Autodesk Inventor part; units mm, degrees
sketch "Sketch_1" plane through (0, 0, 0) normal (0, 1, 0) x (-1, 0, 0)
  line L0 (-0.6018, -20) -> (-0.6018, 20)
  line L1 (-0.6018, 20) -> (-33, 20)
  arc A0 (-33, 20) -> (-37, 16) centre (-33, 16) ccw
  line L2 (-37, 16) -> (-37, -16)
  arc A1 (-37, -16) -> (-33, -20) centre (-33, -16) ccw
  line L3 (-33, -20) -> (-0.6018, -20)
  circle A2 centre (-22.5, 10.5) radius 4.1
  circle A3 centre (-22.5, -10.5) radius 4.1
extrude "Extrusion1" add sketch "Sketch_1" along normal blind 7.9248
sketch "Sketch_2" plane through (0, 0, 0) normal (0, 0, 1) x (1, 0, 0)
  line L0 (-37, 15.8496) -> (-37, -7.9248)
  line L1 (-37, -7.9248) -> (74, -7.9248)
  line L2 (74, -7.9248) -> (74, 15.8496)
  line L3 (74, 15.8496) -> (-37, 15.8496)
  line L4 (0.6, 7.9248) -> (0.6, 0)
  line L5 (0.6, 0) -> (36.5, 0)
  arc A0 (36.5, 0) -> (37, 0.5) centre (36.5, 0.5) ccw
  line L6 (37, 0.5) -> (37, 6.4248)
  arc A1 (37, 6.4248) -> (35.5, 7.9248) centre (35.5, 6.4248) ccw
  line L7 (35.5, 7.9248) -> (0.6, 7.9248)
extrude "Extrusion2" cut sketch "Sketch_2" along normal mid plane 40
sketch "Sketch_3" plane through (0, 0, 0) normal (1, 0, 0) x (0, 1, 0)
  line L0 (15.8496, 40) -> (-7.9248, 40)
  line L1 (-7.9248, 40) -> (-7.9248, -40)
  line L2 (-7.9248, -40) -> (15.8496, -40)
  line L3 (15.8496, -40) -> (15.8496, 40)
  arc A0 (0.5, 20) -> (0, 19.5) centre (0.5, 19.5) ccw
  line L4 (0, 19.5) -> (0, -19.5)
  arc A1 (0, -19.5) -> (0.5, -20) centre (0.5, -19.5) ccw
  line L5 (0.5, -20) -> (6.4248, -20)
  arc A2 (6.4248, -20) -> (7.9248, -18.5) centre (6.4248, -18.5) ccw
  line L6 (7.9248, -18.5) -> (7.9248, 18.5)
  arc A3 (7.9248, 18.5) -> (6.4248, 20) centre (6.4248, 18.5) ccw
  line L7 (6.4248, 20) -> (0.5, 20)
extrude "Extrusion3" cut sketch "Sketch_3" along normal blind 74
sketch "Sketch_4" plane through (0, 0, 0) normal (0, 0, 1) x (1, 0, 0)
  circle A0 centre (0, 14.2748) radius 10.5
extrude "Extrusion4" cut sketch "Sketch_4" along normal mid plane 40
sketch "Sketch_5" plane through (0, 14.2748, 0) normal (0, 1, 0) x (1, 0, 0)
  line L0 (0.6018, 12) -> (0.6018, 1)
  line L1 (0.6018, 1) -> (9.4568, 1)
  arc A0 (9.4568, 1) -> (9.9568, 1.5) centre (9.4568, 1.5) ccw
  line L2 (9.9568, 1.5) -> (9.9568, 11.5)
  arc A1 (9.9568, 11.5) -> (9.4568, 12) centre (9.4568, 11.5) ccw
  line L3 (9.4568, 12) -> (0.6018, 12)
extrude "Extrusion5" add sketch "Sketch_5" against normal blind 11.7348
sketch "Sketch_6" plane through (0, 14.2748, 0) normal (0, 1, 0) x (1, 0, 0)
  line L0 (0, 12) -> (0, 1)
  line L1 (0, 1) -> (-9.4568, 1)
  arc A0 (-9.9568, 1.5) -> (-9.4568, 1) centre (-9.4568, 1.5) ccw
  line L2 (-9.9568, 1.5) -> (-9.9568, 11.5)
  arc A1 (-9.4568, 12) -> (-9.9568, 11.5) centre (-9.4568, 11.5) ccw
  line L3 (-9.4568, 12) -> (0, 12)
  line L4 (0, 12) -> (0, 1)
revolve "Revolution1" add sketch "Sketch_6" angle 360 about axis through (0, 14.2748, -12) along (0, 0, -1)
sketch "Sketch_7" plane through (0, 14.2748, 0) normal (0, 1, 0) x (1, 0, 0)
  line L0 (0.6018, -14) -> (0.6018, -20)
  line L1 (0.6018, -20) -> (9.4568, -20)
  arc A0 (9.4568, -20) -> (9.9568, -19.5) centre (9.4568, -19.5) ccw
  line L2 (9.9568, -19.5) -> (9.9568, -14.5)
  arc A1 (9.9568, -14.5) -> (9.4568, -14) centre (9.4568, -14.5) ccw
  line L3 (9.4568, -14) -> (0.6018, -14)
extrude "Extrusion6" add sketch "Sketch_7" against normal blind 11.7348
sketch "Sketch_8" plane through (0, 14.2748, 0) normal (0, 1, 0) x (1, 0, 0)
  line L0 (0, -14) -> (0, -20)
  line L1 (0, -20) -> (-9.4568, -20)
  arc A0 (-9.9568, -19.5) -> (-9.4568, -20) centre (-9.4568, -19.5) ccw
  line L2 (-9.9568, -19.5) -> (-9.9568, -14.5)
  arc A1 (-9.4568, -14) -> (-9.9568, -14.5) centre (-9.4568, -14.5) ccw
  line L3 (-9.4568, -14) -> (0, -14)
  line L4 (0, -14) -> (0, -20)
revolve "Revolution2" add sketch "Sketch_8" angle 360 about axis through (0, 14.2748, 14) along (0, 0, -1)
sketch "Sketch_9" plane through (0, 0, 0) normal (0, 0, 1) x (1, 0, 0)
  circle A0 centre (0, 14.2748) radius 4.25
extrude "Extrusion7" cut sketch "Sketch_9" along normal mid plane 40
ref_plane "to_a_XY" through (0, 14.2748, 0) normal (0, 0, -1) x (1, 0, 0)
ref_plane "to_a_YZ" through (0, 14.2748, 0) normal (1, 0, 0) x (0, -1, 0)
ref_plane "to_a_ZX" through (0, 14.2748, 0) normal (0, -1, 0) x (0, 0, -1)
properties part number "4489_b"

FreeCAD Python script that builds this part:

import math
import FreeCAD as App
import Part
import Sketcher
from FreeCAD import Vector
Q = App.Units.Quantity


def add_polygon(sketch, points):
    """Adds a closed chain of lines whose ends are joined by coincident constraints."""
    first, n = sketch.GeometryCount, len(points)
    for a, b in zip(points, points[1:] + points[:1]):
        sketch.addGeometry(Part.LineSegment(App.Vector(*a, 0), App.Vector(*b, 0)), False)
    for i in range(n):
        sketch.addConstraint(Sketcher.Constraint("Coincident", first + i, 2, first + (i + 1) % n, 1))

doc = App.newDocument("Part")
params = doc.addObject("Spreadsheet::Sheet", "Params")
for row, (alias, value) in enumerate([
    ("sketch1_radius", "4 mm"),
    ("sketch1_diameter", "8.2 mm"),
    ("sketch1_height", "40 mm"),
    ("pad1_length", "7.9248 mm"),
    ("sketch2_radius", "1.5 mm"),
    ("sketch2_radius2", "0.5 mm"),
    ("sketch2_width", "111 mm"),
    ("sketch2_width2", "34.9 mm"),
    ("pocket1_length", "40 mm"),
    ("sketch3_radius", "0.5 mm"),
    ("sketch3_radius2", "1.5 mm"),
    ("sketch3_height", "80 mm"),
    ("sketch3_height2", "37 mm"),
    ("pocket2_length", "74 mm"),
    ("sketch4_diameter", "21 mm"),
    ("pocket3_length", "40 mm"),
    ("sketch5_radius", "0.5 mm"),
    ("sketch5_height", "11 mm"),
    ("pad2_length", "11.7348 mm"),
    ("sketch6_radius", "0.5 mm"),
    ("sketch6_height", "11 mm"),
    ("revolution_angle", "360 deg"),
    ("sketch7_radius", "0.5 mm"),
    ("sketch7_height", "6 mm"),
    ("pad3_length", "11.7348 mm"),
    ("sketch8_radius", "0.5 mm"),
    ("sketch8_height", "6 mm"),
    ("revolution2_angle", "360 deg"),
    ("sketch9_diameter", "8.5 mm"),
    ("pocket4_length", "40 mm"),
], start=1):
    params.set(f"A{row}", alias)
    params.set(f"B{row}", "=" + value)
    params.setAlias(f"B{row}", alias)

body = doc.addObject("PartDesign::Body", "Body")

sketch1 = body.newObject("Sketcher::SketchObject", "Sketch")
sketch1.AttachmentSupport = (doc.getObject("XZ_Plane"), [""])
sketch1.MapMode = "FlatFace"
sketch1.addGeometry([
    Part.LineSegment(Vector(33, -20, 0), Vector(0.6018, -20, 0)),
    Part.LineSegment(Vector(0.6018, -20, 0), Vector(0.6018, 20, 0)),
    Part.LineSegment(Vector(0.6018, 20, 0), Vector(33, 20, 0)),
    Part.ArcOfCircle(Part.Circle(Vector(33, 16, 0), Vector(0, 0, 1), 4), math.radians(0), math.radians(90)),
    Part.LineSegment(Vector(37, 16, 0), Vector(37, -16, 0)),
    Part.ArcOfCircle(Part.Circle(Vector(33, -16, 0), Vector(0, 0, 1), 4), math.radians(-90), math.radians(0)),
    Part.Circle(Vector(22.5, -10.5, 0), Vector(0, 0, 1), 4.1),
    Part.Circle(Vector(22.5, 10.5, 0), Vector(0, 0, 1), 4.1),
], False)
sketch1.addConstraint([
    Sketcher.Constraint("Coincident", 0, 2, 1, 1),
    Sketcher.Constraint("Coincident", 1, 2, 2, 1),
    Sketcher.Constraint("Tangent", 2, 2, 3, 2),
    Sketcher.Constraint("Tangent", 3, 1, 4, 1),
    Sketcher.Constraint("Tangent", 4, 2, 5, 2),
    Sketcher.Constraint("Tangent", 5, 1, 0, 1),
    Sketcher.Constraint("Horizontal", 0),
    Sketcher.Constraint("Vertical", 1),
    Sketcher.Constraint("Horizontal", 2),
    Sketcher.Constraint("Vertical", 4),
    Sketcher.Constraint("Equal", 3, 5),
    Sketcher.Constraint("Equal", 6, 7),
    Sketcher.Constraint("Symmetric", 6, 3, 7, 3, -1),
    Sketcher.Constraint("Radius", 3, Q("4 mm")),
    Sketcher.Constraint("Diameter", 6, Q("8.2 mm")),
    Sketcher.Constraint("DistanceY", 1, 1, 1, 2, Q("40 mm")),
    Sketcher.Constraint("DistanceX", -1, 1, 3, 3, Q("33 mm")),
    Sketcher.Constraint("DistanceY", -1, 1, 3, 3, Q("16 mm")),
    Sketcher.Constraint("DistanceY", 6, 3, 7, 3, Q("21 mm")),
    Sketcher.Constraint("DistanceX", -1, 1, 6, 3, Q("22.5 mm")),
    Sketcher.Constraint("DistanceX", 0, 2, 0, 1, Q("32.3982 mm")),
])
sketch1.setExpression("Constraints[13]", "Params.sketch1_radius")
sketch1.setExpression("Constraints[14]", "Params.sketch1_diameter")
sketch1.setExpression("Constraints[15]", "Params.sketch1_height")
pad1 = body.newObject("PartDesign::Pad", "Pad")
pad1.Profile = sketch1
pad1.setExpression("Length", "Params.pad1_length")
pad1.Reversed = True

sketch2 = body.newObject("Sketcher::SketchObject", "Sketch001")
sketch2.AttachmentSupport = (doc.getObject("XY_Plane"), [""])
sketch2.MapMode = "FlatFace"
add_polygon(sketch2, [(74, 15.8496), (-37, 15.8496), (-37, -7.9248), (74, -7.9248)])
sketch2.addGeometry(Part.LineSegment(Vector(0.6, 0, 0), Vector(0.6, 7.9248, 0)), False)
sketch2.addGeometry(Part.LineSegment(Vector(0.6, 7.9248, 0), Vector(35.5, 7.9248, 0)), False)
sketch2.addGeometry(Part.ArcOfCircle(Part.Circle(Vector(35.5, 6.4248, 0), Vector(0, 0, 1), 1.5), math.radians(0), math.radians(90)), False)
sketch2.addGeometry(Part.LineSegment(Vector(37, 6.4248, 0), Vector(37, 0.5, 0)), False)
sketch2.addGeometry(Part.ArcOfCircle(Part.Circle(Vector(36.5, 0.5, 0), Vector(0, 0, 1), 0.5), math.radians(-90), math.radians(0)), False)
sketch2.addGeometry(Part.LineSegment(Vector(36.5, 0, 0), Vector(0.6, 0, 0)), False)
sketch2.addConstraint([
    Sketcher.Constraint("Coincident", 4, 2, 5, 1),
    Sketcher.Constraint("Tangent", 5, 2, 6, 2),
    Sketcher.Constraint("Tangent", 6, 1, 7, 1),
    Sketcher.Constraint("Tangent", 7, 2, 8, 2),
    Sketcher.Constraint("Tangent", 8, 1, 9, 1),
    Sketcher.Constraint("Coincident", 9, 2, 4, 1),
    Sketcher.Constraint("Horizontal", 0),
    Sketcher.Constraint("Vertical", 1),
    Sketcher.Constraint("Horizontal", 2),
    Sketcher.Constraint("Vertical", 3),
    Sketcher.Constraint("Vertical", 4),
    Sketcher.Constraint("Horizontal", 5),
    Sketcher.Constraint("Vertical", 7),
    Sketcher.Constraint("Horizontal", 9),
    Sketcher.Constraint("PointOnObject", 8, 1, -1),
    Sketcher.Constraint("Radius", 6, Q("1.5 mm")),
    Sketcher.Constraint("Radius", 8, Q("0.5 mm")),
    Sketcher.Constraint("DistanceX", 0, 2, 0, 1, Q("111 mm")),
    Sketcher.Constraint("DistanceX", 5, 1, 5, 2, Q("34.9 mm")),
    Sketcher.Constraint("DistanceX", 0, 2, -1, 1, Q("37 mm")),
    Sketcher.Constraint("DistanceX", -1, 1, 6, 1, Q("37 mm")),
    Sketcher.Constraint("DistanceY", 1, 2, 1, 1, Q("23.7744 mm")),
    Sketcher.Constraint("DistanceY", 4, 1, 4, 2, Q("7.9248 mm")),
    Sketcher.Constraint("DistanceY", -1, 1, 0, 2, Q("15.8496 mm")),
])
sketch2.setExpression("Constraints[19]", "Params.sketch2_radius")
sketch2.setExpression("Constraints[20]", "Params.sketch2_radius2")
sketch2.setExpression("Constraints[21]", "Params.sketch2_width")
sketch2.setExpression("Constraints[22]", "Params.sketch2_width2")
pocket1 = body.newObject("PartDesign::Pocket", "Pocket")
pocket1.Profile = sketch2
pocket1.setExpression("Length", "Params.pocket1_length")
pocket1.Midplane = True

sketch3 = body.newObject("Sketcher::SketchObject", "Sketch002")
sketch3.AttachmentSupport = (doc.getObject("YZ_Plane"), [""])
sketch3.MapMode = "FlatFace"
add_polygon(sketch3, [(15.8496, -40), (15.8496, 40), (-7.9248, 40), (-7.9248, -40)])
sketch3.addGeometry(Part.ArcOfCircle(Part.Circle(Vector(0.5, 19.5, 0), Vector(0, 0, 1), 0.5), math.radians(90), math.radians(180)), False)
sketch3.addGeometry(Part.LineSegment(Vector(0.5, 20, 0), Vector(6.4248, 20, 0)), False)
sketch3.addGeometry(Part.ArcOfCircle(Part.Circle(Vector(6.4248, 18.5, 0), Vector(0, 0, 1), 1.5), math.radians(0), math.radians(90)), False)
sketch3.addGeometry(Part.LineSegment(Vector(7.9248, 18.5, 0), Vector(7.9248, -18.5, 0)), False)
sketch3.addGeometry(Part.ArcOfCircle(Part.Circle(Vector(6.4248, -18.5, 0), Vector(0, 0, 1), 1.5), math.radians(-90), math.radians(0)), False)
sketch3.addGeometry(Part.LineSegment(Vector(6.4248, -20, 0), Vector(0.5, -20, 0)), False)
sketch3.addGeometry(Part.ArcOfCircle(Part.Circle(Vector(0.5, -19.5, 0), Vector(0, 0, 1), 0.5), math.radians(180), math.radians(270)), False)
sketch3.addGeometry(Part.LineSegment(Vector(0, -19.5, 0), Vector(0, 19.5, 0)), False)
sketch3.addConstraint([
    Sketcher.Constraint("Tangent", 4, 1, 5, 1),
    Sketcher.Constraint("Tangent", 5, 2, 6, 2),
    Sketcher.Constraint("Tangent", 6, 1, 7, 1),
    Sketcher.Constraint("Tangent", 7, 2, 8, 2),
    Sketcher.Constraint("Tangent", 8, 1, 9, 1),
    Sketcher.Constraint("Tangent", 9, 2, 10, 2),
    Sketcher.Constraint("Tangent", 10, 1, 11, 1),
    Sketcher.Constraint("Tangent", 11, 2, 4, 2),
    Sketcher.Constraint("Vertical", 0),
    Sketcher.Constraint("Horizontal", 1),
    Sketcher.Constraint("Vertical", 2),
    Sketcher.Constraint("Horizontal", 3),
    Sketcher.Constraint("Horizontal", 5),
    Sketcher.Constraint("Vertical", 7),
    Sketcher.Constraint("Horizontal", 9),
    Sketcher.Constraint("Vertical", 11),
    Sketcher.Constraint("Equal", 6, 8),
    Sketcher.Constraint("Equal", 4, 10),
    Sketcher.Constraint("Symmetric", 10, 1, 11, 2, -1, 1),
    Sketcher.Constraint("Radius", 4, Q("0.5 mm")),
    Sketcher.Constraint("Radius", 6, Q("1.5 mm")),
    Sketcher.Constraint("DistanceY", 0, 1, 0, 2, Q("80 mm")),
    Sketcher.Constraint("DistanceY", 7, 2, 7, 1, Q("37 mm")),
    Sketcher.Constraint("DistanceY", -1, 1, 0, 2, Q("40 mm")),
    Sketcher.Constraint("DistanceX", 1, 2, 1, 1, Q("23.7744 mm")),
    Sketcher.Constraint("DistanceX", 5, 1, 5, 2, Q("5.9248 mm")),
    Sketcher.Constraint("DistanceX", -1, 1, 0, 2, Q("15.8496 mm")),
])
sketch3.setExpression("Constraints[23]", "Params.sketch3_radius")
sketch3.setExpression("Constraints[24]", "Params.sketch3_radius2")
sketch3.setExpression("Constraints[25]", "Params.sketch3_height")
sketch3.setExpression("Constraints[26]", "Params.sketch3_height2")
pocket2 = body.newObject("PartDesign::Pocket", "Pocket001")
pocket2.Profile = sketch3
pocket2.setExpression("Length", "Params.pocket2_length")
pocket2.Reversed = True

sketch4 = body.newObject("Sketcher::SketchObject", "Sketch003")
sketch4.AttachmentSupport = (doc.getObject("XY_Plane"), [""])
sketch4.MapMode = "FlatFace"
sketch4.addGeometry(Part.Circle(Vector(0, 14.2748, 0), Vector(0, 0, 1), 10.5), False)
sketch4.addConstraint([
    Sketcher.Constraint("PointOnObject", 0, 3, -2),
    Sketcher.Constraint("Diameter", 0, Q("21 mm")),
    Sketcher.Constraint("DistanceY", -1, 1, 0, 3, Q("14.2748 mm")),
])
sketch4.setExpression("Constraints[1]", "Params.sketch4_diameter")
pocket3 = body.newObject("PartDesign::Pocket", "Pocket002")
pocket3.Profile = sketch4
pocket3.setExpression("Length", "Params.pocket3_length")
pocket3.Midplane = True

sketch5 = body.newObject("Sketcher::SketchObject", "Sketch004")
sketch5.AttachmentSupport = (doc.getObject("XZ_Plane"), [""])
sketch5.MapMode = "FlatFace"
sketch5.AttachmentOffset = App.Placement(Vector(0, 0, -14.2748), App.Rotation())
sketch5.addGeometry([
    Part.LineSegment(Vector(9.4568, -12, 0), Vector(0.6018, -12, 0)),
    Part.LineSegment(Vector(0.6018, -12, 0), Vector(0.6018, -1, 0)),
    Part.LineSegment(Vector(0.6018, -1, 0), Vector(9.4568, -1, 0)),
    Part.ArcOfCircle(Part.Circle(Vector(9.4568, -1.5, 0), Vector(0, 0, 1), 0.5), math.radians(0), math.radians(90)),
    Part.LineSegment(Vector(9.9568, -1.5, 0), Vector(9.9568, -11.5, 0)),
    Part.ArcOfCircle(Part.Circle(Vector(9.4568, -11.5, 0), Vector(0, 0, 1), 0.5), math.radians(-90), math.radians(0)),
], False)
sketch5.addConstraint([
    Sketcher.Constraint("Coincident", 0, 2, 1, 1),
    Sketcher.Constraint("Coincident", 1, 2, 2, 1),
    Sketcher.Constraint("Tangent", 2, 2, 3, 2),
    Sketcher.Constraint("Tangent", 3, 1, 4, 1),
    Sketcher.Constraint("Tangent", 4, 2, 5, 2),
    Sketcher.Constraint("Tangent", 5, 1, 0, 1),
    Sketcher.Constraint("Horizontal", 0),
    Sketcher.Constraint("Vertical", 1),
    Sketcher.Constraint("Horizontal", 2),
    Sketcher.Constraint("Vertical", 4),
    Sketcher.Constraint("Equal", 3, 5),
    Sketcher.Constraint("Radius", 3, Q("0.5 mm")),
    Sketcher.Constraint("DistanceY", 1, 1, 1, 2, Q("11 mm")),
    Sketcher.Constraint("DistanceY", 0, 2, -1, 1, Q("12 mm")),
    Sketcher.Constraint("DistanceX", 0, 2, 0, 1, Q("8.855 mm")),
    Sketcher.Constraint("DistanceX", -1, 1, 3, 3, Q("9.4568 mm")),
])
sketch5.setExpression("Constraints[11]", "Params.sketch5_radius")
sketch5.setExpression("Constraints[12]", "Params.sketch5_height")
pad2 = body.newObject("PartDesign::Pad", "Pad001")
pad2.Profile = sketch5
pad2.setExpression("Length", "Params.pad2_length")

sketch6 = body.newObject("Sketcher::SketchObject", "Sketch005")
sketch6.AttachmentSupport = (doc.getObject("XZ_Plane"), [""])
sketch6.MapMode = "FlatFace"
sketch6.AttachmentOffset = App.Placement(Vector(0, 0, -14.2748), App.Rotation())
sketch6.addGeometry([
    Part.LineSegment(Vector(0, -1, 0), Vector(0, -12, 0)),
    Part.LineSegment(Vector(0, -12, 0), Vector(-9.4568, -12, 0)),
    Part.ArcOfCircle(Part.Circle(Vector(-9.4568, -11.5, 0), Vector(0, 0, 1), 0.5), math.radians(180), math.radians(270)),
    Part.LineSegment(Vector(-9.9568, -11.5, 0), Vector(-9.9568, -1.5, 0)),
    Part.ArcOfCircle(Part.Circle(Vector(-9.4568, -1.5, 0), Vector(0, 0, 1), 0.5), math.radians(90), math.radians(180)),
    Part.LineSegment(Vector(-9.4568, -1, 0), Vector(0, -1, 0)),
], False)
sketch6.addConstraint([
    Sketcher.Constraint("Coincident", 0, 2, 1, 1),
    Sketcher.Constraint("Tangent", 1, 2, 2, 2),
    Sketcher.Constraint("Tangent", 2, 1, 3, 1),
    Sketcher.Constraint("Tangent", 3, 2, 4, 2),
    Sketcher.Constraint("Tangent", 4, 1, 5, 1),
    Sketcher.Constraint("Coincident", 5, 2, 0, 1),
    Sketcher.Constraint("Vertical", 0),
    Sketcher.Constraint("Horizontal", 1),
    Sketcher.Constraint("Vertical", 3),
    Sketcher.Constraint("Horizontal", 5),
    Sketcher.Constraint("Equal", 2, 4),
    Sketcher.Constraint("PointOnObject", 0, 2, -2),
    Sketcher.Constraint("Radius", 2, Q("0.5 mm")),
    Sketcher.Constraint("DistanceY", 0, 2, 0, 1, Q("11 mm")),
    Sketcher.Constraint("DistanceY", 0, 2, -1, 1, Q("12 mm")),
    Sketcher.Constraint("DistanceX", 1, 2, 1, 1, Q("9.4568 mm")),
])
sketch6.setExpression("Constraints[12]", "Params.sketch6_radius")
sketch6.setExpression("Constraints[13]", "Params.sketch6_height")
revolution = body.newObject("PartDesign::Revolution", "Revolution")
revolution.Profile = sketch6
revolution.ReferenceAxis = (sketch6, ["V_Axis"])
revolution.setExpression("Angle", "Params.revolution_angle")

sketch7 = body.newObject("Sketcher::SketchObject", "Sketch006")
sketch7.AttachmentSupport = (doc.getObject("XZ_Plane"), [""])
sketch7.MapMode = "FlatFace"
sketch7.AttachmentOffset = App.Placement(Vector(0, 0, -14.2748), App.Rotation())
sketch7.addGeometry([
    Part.LineSegment(Vector(9.4568, 14, 0), Vector(0.6018, 14, 0)),
    Part.LineSegment(Vector(0.6018, 14, 0), Vector(0.6018, 20, 0)),
    Part.LineSegment(Vector(0.6018, 20, 0), Vector(9.4568, 20, 0)),
    Part.ArcOfCircle(Part.Circle(Vector(9.4568, 19.5, 0), Vector(0, 0, 1), 0.5), math.radians(0), math.radians(90)),
    Part.LineSegment(Vector(9.9568, 19.5, 0), Vector(9.9568, 14.5, 0)),
    Part.ArcOfCircle(Part.Circle(Vector(9.4568, 14.5, 0), Vector(0, 0, 1), 0.5), math.radians(-90), math.radians(0)),
], False)
sketch7.addConstraint([
    Sketcher.Constraint("Coincident", 0, 2, 1, 1),
    Sketcher.Constraint("Coincident", 1, 2, 2, 1),
    Sketcher.Constraint("Tangent", 2, 2, 3, 2),
    Sketcher.Constraint("Tangent", 3, 1, 4, 1),
    Sketcher.Constraint("Tangent", 4, 2, 5, 2),
    Sketcher.Constraint("Tangent", 5, 1, 0, 1),
    Sketcher.Constraint("Horizontal", 0),
    Sketcher.Constraint("Vertical", 1),
    Sketcher.Constraint("Horizontal", 2),
    Sketcher.Constraint("Vertical", 4),
    Sketcher.Constraint("Equal", 3, 5),
    Sketcher.Constraint("Radius", 3, Q("0.5 mm")),
    Sketcher.Constraint("DistanceY", 1, 1, 1, 2, Q("6 mm")),
    Sketcher.Constraint("DistanceY", -1, 1, 0, 2, Q("14 mm")),
    Sketcher.Constraint("DistanceX", 0, 2, 0, 1, Q("8.855 mm")),
    Sketcher.Constraint("DistanceX", -1, 1, 3, 3, Q("9.4568 mm")),
])
sketch7.setExpression("Constraints[11]", "Params.sketch7_radius")
sketch7.setExpression("Constraints[12]", "Params.sketch7_height")
pad3 = body.newObject("PartDesign::Pad", "Pad002")
pad3.Profile = sketch7
pad3.setExpression("Length", "Params.pad3_length")

sketch8 = body.newObject("Sketcher::SketchObject", "Sketch007")
sketch8.AttachmentSupport = (doc.getObject("XZ_Plane"), [""])
sketch8.MapMode = "FlatFace"
sketch8.AttachmentOffset = App.Placement(Vector(0, 0, -14.2748), App.Rotation())
sketch8.addGeometry([
    Part.LineSegment(Vector(0, 20, 0), Vector(0, 14, 0)),
    Part.LineSegment(Vector(0, 14, 0), Vector(-9.4568, 14, 0)),
    Part.ArcOfCircle(Part.Circle(Vector(-9.4568, 14.5, 0), Vector(0, 0, 1), 0.5), math.radians(180), math.radians(270)),
    Part.LineSegment(Vector(-9.9568, 14.5, 0), Vector(-9.9568, 19.5, 0)),
    Part.ArcOfCircle(Part.Circle(Vector(-9.4568, 19.5, 0), Vector(0, 0, 1), 0.5), math.radians(90), math.radians(180)),
    Part.LineSegment(Vector(-9.4568, 20, 0), Vector(0, 20, 0)),
], False)
sketch8.addConstraint([
    Sketcher.Constraint("Coincident", 0, 2, 1, 1),
    Sketcher.Constraint("Tangent", 1, 2, 2, 2),
    Sketcher.Constraint("Tangent", 2, 1, 3, 1),
    Sketcher.Constraint("Tangent", 3, 2, 4, 2),
    Sketcher.Constraint("Tangent", 4, 1, 5, 1),
    Sketcher.Constraint("Coincident", 5, 2, 0, 1),
    Sketcher.Constraint("Vertical", 0),
    Sketcher.Constraint("Horizontal", 1),
    Sketcher.Constraint("Vertical", 3),
    Sketcher.Constraint("Horizontal", 5),
    Sketcher.Constraint("Equal", 2, 4),
    Sketcher.Constraint("PointOnObject", 0, 2, -2),
    Sketcher.Constraint("Radius", 2, Q("0.5 mm")),
    Sketcher.Constraint("DistanceY", 0, 2, 0, 1, Q("6 mm")),
    Sketcher.Constraint("DistanceY", -1, 1, 0, 2, Q("14 mm")),
    Sketcher.Constraint("DistanceX", 1, 2, 1, 1, Q("9.4568 mm")),
])
sketch8.setExpression("Constraints[12]", "Params.sketch8_radius")
sketch8.setExpression("Constraints[13]", "Params.sketch8_height")
revolution2 = body.newObject("PartDesign::Revolution", "Revolution001")
revolution2.Profile = sketch8
revolution2.ReferenceAxis = (sketch8, ["V_Axis"])
revolution2.setExpression("Angle", "Params.revolution2_angle")

sketch9 = body.newObject("Sketcher::SketchObject", "Sketch008")
sketch9.AttachmentSupport = (doc.getObject("XY_Plane"), [""])
sketch9.MapMode = "FlatFace"
sketch9.addGeometry(Part.Circle(Vector(0, 14.2748, 0), Vector(0, 0, 1), 4.25), False)
sketch9.addConstraint([
    Sketcher.Constraint("PointOnObject", 0, 3, -2),
    Sketcher.Constraint("Diameter", 0, Q("8.5 mm")),
    Sketcher.Constraint("DistanceY", -1, 1, 0, 3, Q("14.2748 mm")),
])
sketch9.setExpression("Constraints[1]", "Params.sketch9_diameter")
pocket4 = body.newObject("PartDesign::Pocket", "Pocket003")
pocket4.Profile = sketch9
pocket4.setExpression("Length", "Params.pocket4_length")
pocket4.Midplane = True

doc.recompute()
